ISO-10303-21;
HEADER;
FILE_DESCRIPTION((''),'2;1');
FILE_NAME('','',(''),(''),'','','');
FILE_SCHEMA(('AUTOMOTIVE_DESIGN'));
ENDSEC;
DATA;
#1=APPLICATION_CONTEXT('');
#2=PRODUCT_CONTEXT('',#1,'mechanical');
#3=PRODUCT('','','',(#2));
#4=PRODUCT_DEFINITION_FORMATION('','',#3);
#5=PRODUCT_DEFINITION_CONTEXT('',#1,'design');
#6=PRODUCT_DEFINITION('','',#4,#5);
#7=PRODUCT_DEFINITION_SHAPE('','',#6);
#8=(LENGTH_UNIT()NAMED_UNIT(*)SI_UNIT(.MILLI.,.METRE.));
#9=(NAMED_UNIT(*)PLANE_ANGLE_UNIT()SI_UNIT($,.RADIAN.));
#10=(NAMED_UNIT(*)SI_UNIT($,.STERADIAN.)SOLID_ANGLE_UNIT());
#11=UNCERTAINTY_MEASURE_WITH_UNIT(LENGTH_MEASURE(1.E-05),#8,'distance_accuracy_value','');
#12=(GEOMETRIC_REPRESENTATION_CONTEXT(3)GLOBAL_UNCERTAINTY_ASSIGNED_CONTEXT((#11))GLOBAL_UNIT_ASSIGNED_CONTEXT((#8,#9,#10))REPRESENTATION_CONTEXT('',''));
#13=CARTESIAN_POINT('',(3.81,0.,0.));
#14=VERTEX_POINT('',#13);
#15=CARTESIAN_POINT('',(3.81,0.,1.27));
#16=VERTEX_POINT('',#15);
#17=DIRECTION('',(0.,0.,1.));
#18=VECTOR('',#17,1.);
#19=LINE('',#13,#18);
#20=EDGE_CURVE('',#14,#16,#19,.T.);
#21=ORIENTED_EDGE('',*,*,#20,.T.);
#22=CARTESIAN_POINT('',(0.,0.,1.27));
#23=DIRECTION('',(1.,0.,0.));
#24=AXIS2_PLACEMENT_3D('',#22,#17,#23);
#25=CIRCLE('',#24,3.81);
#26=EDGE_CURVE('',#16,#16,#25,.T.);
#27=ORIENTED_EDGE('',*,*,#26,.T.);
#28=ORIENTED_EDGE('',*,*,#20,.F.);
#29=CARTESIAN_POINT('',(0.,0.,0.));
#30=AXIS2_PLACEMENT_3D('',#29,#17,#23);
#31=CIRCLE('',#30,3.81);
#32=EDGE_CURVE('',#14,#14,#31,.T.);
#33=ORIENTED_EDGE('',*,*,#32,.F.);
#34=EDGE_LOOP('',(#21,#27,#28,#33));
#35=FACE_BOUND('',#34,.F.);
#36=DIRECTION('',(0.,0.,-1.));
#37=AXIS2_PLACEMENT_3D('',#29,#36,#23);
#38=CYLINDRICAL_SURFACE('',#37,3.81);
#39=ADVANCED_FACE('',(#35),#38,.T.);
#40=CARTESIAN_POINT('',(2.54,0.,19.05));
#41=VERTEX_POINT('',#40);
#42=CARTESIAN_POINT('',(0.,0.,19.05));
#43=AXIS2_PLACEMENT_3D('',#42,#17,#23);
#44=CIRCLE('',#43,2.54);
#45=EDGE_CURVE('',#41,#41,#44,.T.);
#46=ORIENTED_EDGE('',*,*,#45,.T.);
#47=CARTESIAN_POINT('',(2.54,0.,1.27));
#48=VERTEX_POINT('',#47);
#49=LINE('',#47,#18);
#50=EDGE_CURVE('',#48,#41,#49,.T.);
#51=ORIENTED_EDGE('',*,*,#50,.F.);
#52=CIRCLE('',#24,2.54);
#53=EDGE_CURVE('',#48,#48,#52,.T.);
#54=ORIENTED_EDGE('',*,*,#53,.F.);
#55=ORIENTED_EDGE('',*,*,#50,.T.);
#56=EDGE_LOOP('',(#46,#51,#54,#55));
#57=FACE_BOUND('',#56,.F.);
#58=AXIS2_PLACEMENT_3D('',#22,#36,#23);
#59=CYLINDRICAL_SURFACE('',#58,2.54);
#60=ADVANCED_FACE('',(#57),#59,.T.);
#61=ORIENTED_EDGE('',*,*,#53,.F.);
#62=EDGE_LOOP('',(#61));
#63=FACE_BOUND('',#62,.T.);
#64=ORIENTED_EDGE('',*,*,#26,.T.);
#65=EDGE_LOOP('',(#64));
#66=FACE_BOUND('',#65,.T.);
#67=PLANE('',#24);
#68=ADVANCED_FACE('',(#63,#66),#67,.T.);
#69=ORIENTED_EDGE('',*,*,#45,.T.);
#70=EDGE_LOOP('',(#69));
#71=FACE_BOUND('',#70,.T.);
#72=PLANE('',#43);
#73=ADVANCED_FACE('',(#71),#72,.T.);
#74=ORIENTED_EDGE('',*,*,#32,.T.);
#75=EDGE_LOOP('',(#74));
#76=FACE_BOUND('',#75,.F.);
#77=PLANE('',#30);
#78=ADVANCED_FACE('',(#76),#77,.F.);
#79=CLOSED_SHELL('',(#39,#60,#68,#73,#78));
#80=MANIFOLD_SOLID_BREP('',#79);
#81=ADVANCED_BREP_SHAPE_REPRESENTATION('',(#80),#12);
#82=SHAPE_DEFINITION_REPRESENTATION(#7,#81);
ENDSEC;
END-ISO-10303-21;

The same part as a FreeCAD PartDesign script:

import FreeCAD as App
import Part
import Sketcher
from FreeCAD import Vector
Q = App.Units.Quantity

doc = App.newDocument("Part")
body = doc.addObject("PartDesign::Body", "Body")

# Sketch on XY plane
sketch1 = body.newObject("Sketcher::SketchObject", "Sketch")
sketch1.AttachmentSupport = (doc.getObject("XY_Plane"), [""])
sketch1.MapMode = "FlatFace"
sketch1.addGeometry(Part.Circle(Vector(0, 0, 0), Vector(0, 0, 1), 3.8), False)
sketch1.addConstraint(Sketcher.Constraint("Coincident", 0, 3, -1, 1))
sketch1.addConstraint(Sketcher.Constraint("Diameter", 0, Q("0.3 in")))
pad1 = body.newObject("PartDesign::Pad", "Pad")
pad1.Profile = sketch1
pad1.Length = Q("0.05 in")

# Sketch on XY plane
sketch2 = body.newObject("Sketcher::SketchObject", "Sketch001")
sketch2.AttachmentSupport = (doc.getObject("XY_Plane"), [""])
sketch2.MapMode = "FlatFace"
sketch2.AttachmentOffset = App.Placement(Vector(0, 0, 0.05 * 25.4), App.Rotation())
sketch2.addGeometry(Part.Circle(Vector(0, 0, 0), Vector(0, 0, 1), 2.5), False)
sketch2.addConstraint(Sketcher.Constraint("Coincident", 0, 3, -1, 1))
sketch2.addConstraint(Sketcher.Constraint("Diameter", 0, Q("0.2 in")))
pad2 = body.newObject("PartDesign::Pad", "Pad001")
pad2.Profile = sketch2
pad2.Length = Q("0.7 in")

doc.recompute()
